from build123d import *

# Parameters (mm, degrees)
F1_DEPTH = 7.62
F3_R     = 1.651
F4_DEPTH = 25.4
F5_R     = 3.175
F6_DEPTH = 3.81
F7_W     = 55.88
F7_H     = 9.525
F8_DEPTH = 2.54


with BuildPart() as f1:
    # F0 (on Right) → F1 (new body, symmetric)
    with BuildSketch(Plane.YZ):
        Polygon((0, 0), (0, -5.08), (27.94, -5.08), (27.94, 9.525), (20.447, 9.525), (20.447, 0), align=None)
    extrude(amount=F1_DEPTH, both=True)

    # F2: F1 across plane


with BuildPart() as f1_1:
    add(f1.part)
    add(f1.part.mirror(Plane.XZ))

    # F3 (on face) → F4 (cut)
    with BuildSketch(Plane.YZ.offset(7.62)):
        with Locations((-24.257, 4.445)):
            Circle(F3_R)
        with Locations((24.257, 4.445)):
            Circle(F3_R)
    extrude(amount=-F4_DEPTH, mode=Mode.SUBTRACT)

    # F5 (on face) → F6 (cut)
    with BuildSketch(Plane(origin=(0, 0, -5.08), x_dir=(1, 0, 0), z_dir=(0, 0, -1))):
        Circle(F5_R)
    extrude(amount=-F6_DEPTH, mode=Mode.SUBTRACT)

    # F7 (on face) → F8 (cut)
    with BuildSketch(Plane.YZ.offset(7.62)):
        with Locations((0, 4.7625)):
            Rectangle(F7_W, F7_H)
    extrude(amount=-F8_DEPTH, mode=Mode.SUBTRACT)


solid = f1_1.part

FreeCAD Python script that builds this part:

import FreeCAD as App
import Part
import Sketcher
Q = App.Units.Quantity


def add_polygon(sketch, points):
    """Adds a closed chain of lines whose ends are joined by coincident constraints."""
    first, n = sketch.GeometryCount, len(points)
    for a, b in zip(points, points[1:] + points[:1]):
        sketch.addGeometry(Part.LineSegment(App.Vector(*a, 0), App.Vector(*b, 0)), False)
    for i in range(n):
        sketch.addConstraint(Sketcher.Constraint("Coincident", first + i, 2, first + (i + 1) % n, 1))

doc = App.newDocument("Part")
body = doc.addObject("PartDesign::Body", "Body")

sketch1 = body.newObject("Sketcher::SketchObject", "Sketch")
sketch1.AttachmentSupport = (doc.getObject("YZ_Plane"), [""])
sketch1.MapMode = "FlatFace"
add_polygon(sketch1, [(0, 0), (0, -5), (28, -5), (28, 10), (20, 10), (20, 0)])
sketch1.addConstraint(Sketcher.Constraint("Vertical", 0))
sketch1.addConstraint(Sketcher.Constraint("Horizontal", 1))
sketch1.addConstraint(Sketcher.Constraint("Vertical", 2))
sketch1.addConstraint(Sketcher.Constraint("Horizontal", 3))
sketch1.addConstraint(Sketcher.Constraint("Vertical", 4))
sketch1.addConstraint(Sketcher.Constraint("Horizontal", 5))
sketch1.addConstraint(Sketcher.Constraint("Coincident", 5, 2, -1, 1))
sketch1.addConstraint(Sketcher.Constraint("DistanceX", 1, 1, 1, 2, Q("1.1 in")))
sketch1.addConstraint(Sketcher.Constraint("DistanceY", 0, 2, 0, 1, Q("0.2 in")))
sketch1.addConstraint(Sketcher.Constraint("DistanceX", 3, 2, 3, 1, Q("0.295 in")))
sketch1.addConstraint(Sketcher.Constraint("DistanceY", 2, 1, 2, 2, Q("0.575 in")))
pad1 = body.newObject("PartDesign::Pad", "Pad")
pad1.Profile = sketch1
pad1.Length = Q("0.6 in")
pad1.Midplane = True
body2 = doc.addObject("PartDesign::Body", "Body001")
doc.recompute()

body2.BaseFeature = body
doc.recompute()

mirroring = doc.addObject("Part::Mirroring", "Mirroring")
mirroring.Source = body
mirroring.Base = App.Vector(0, 0, 0)
mirroring.Normal = App.Vector(0, -1, 0)
body3 = doc.addObject("PartDesign::Body", "Body002")
body3.BaseFeature = mirroring
boolean = body2.newObject("PartDesign::Boolean", "Boolean")
boolean.Type = "Fuse"
boolean.addObjects([body3])
doc.recompute()

sketch2 = body2.newObject("Sketcher::SketchObject", "Sketch001")
sketch2.AttachmentSupport = (doc.getObject("YZ_Plane001"), [""])
sketch2.MapMode = "FlatFace"
sketch2.AttachmentOffset = App.Placement(App.Vector(0, 0, 0.3 * 25.4), App.Rotation())
sketch2.addGeometry(Part.Circle(App.Vector(-24.3, 4.4, 0), App.Vector(0, 0, 1), 1.7), False)
sketch2.addGeometry(Part.Circle(App.Vector(24.3, 4.4, 0), App.Vector(0, 0, 1), 1.7), False)
sketch2.addConstraint(Sketcher.Constraint("Equal", 0, 1))
sketch2.addConstraint(Sketcher.Constraint("Symmetric", 0, 3, 1, 3, -2))
sketch2.addConstraint(Sketcher.Constraint("Diameter", 0, Q("0.13 in")))
sketch2.addConstraint(Sketcher.Constraint("DistanceX", 0, 3, 1, 3, Q("1.91 in")))
sketch2.addConstraint(Sketcher.Constraint("DistanceY", -1, 1, 0, 3, Q("0.175 in")))
pocket1 = body2.newObject("PartDesign::Pocket", "Pocket")
pocket1.Profile = sketch2
pocket1.Length = Q("1 in")

sketch3 = body2.newObject("Sketcher::SketchObject", "Sketch002")
sketch3.AttachmentSupport = (doc.getObject("XY_Plane001"), [""])
sketch3.MapMode = "FlatFace"
sketch3.AttachmentOffset = App.Placement(App.Vector(0, 0, -0.2 * 25.4), App.Rotation())
sketch3.addGeometry(Part.Circle(App.Vector(0, 0, 0), App.Vector(0, 0, 1), 3.2), False)
sketch3.addConstraint(Sketcher.Constraint("Coincident", 0, 3, -1, 1))
sketch3.addConstraint(Sketcher.Constraint("Diameter", 0, Q("0.25 in")))
pocket2 = body2.newObject("PartDesign::Pocket", "Pocket001")
pocket2.Profile = sketch3
pocket2.Length = Q("0.15 in")
pocket2.Reversed = True

sketch4 = body2.newObject("Sketcher::SketchObject", "Sketch003")
sketch4.AttachmentSupport = (doc.getObject("YZ_Plane001"), [""])
sketch4.MapMode = "FlatFace"
sketch4.AttachmentOffset = App.Placement(App.Vector(0, 0, 0.3 * 25.4), App.Rotation())
add_polygon(sketch4, [(-28, 10), (-28, 0), (28, 0), (28, 10)])
sketch4.addConstraint(Sketcher.Constraint("Vertical", 0))
sketch4.addConstraint(Sketcher.Constraint("Horizontal", 1))
sketch4.addConstraint(Sketcher.Constraint("Vertical", 2))
sketch4.addConstraint(Sketcher.Constraint("Horizontal", 3))
sketch4.addConstraint(Sketcher.Constraint("Symmetric", 0, 2, 1, 2, -1, 1))
sketch4.addConstraint(Sketcher.Constraint("DistanceX", 1, 1, 1, 2, Q("2.2 in")))
sketch4.addConstraint(Sketcher.Constraint("DistanceY", 0, 2, 0, 1, Q("0.375 in")))
pocket3 = body2.newObject("PartDesign::Pocket", "Pocket002")
pocket3.Profile = sketch4
pocket3.Length = Q("0.1 in")
mirroring.Visibility = False

doc.recompute()
